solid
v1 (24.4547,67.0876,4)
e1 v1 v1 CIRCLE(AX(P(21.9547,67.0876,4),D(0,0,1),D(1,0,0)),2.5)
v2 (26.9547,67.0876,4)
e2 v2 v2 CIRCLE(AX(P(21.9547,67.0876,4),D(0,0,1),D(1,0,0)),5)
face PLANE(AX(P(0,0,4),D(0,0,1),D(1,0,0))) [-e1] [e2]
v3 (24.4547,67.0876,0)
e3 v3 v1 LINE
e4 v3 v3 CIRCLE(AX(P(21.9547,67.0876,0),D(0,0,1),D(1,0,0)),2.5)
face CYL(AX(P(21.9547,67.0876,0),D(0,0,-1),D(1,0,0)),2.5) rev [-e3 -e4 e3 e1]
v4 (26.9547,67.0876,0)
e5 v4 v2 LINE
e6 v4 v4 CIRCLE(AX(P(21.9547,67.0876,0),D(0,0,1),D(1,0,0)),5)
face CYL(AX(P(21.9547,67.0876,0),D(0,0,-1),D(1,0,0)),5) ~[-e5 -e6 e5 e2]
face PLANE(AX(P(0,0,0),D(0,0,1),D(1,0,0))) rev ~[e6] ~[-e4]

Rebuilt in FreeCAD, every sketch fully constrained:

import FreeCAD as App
import Part
import Sketcher
Q = App.Units.Quantity

doc = App.newDocument("Part")
body = doc.addObject("PartDesign::Body", "Body")

# Sketch on XY plane
sketch1 = body.newObject("Sketcher::SketchObject", "Sketch")
sketch1.AttachmentSupport = (doc.getObject("XY_Plane"), [""])
sketch1.MapMode = "FlatFace"
sketch1.addGeometry([
    Part.Circle(App.Vector(21.9547, 67.0876, 0), App.Vector(0, 0, 1), 5),
    Part.Circle(App.Vector(21.9547, 67.0876, 0), App.Vector(0, 0, 1), 2.5),
], False)
sketch1.addConstraint([
    Sketcher.Constraint("Coincident", 1, 3, 0, 3),
    Sketcher.Constraint("Diameter", 0, Q("10 mm")),
    Sketcher.Constraint("Diameter", 1, Q("5 mm")),
    Sketcher.Constraint("DistanceX", -1, 1, 0, 3, Q("21.9547 mm")),
    Sketcher.Constraint("DistanceY", -1, 1, 0, 3, Q("67.0876 mm")),
])
pad1 = body.newObject("PartDesign::Pad", "Pad")
pad1.Profile = sketch1
pad1.Length = 4

doc.recompute()
